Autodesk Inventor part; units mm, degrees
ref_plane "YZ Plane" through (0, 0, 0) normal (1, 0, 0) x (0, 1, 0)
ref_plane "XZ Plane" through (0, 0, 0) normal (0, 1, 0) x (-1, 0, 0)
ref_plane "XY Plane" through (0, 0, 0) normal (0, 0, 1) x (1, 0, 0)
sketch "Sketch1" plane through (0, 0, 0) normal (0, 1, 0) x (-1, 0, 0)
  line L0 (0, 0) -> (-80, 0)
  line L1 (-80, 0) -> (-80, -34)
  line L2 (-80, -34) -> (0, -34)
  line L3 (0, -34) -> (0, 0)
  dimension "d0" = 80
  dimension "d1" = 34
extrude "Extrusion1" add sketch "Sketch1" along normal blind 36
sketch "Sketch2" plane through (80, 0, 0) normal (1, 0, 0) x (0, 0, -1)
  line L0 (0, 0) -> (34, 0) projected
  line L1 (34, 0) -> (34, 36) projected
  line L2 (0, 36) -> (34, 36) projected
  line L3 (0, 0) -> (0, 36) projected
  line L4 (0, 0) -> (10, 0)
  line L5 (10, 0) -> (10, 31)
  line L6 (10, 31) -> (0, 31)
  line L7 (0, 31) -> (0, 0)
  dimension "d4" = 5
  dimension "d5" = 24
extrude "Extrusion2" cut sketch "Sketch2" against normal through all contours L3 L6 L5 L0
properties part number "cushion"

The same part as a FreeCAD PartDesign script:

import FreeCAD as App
import Part
import Sketcher

V = App.Vector
Q = App.Units.Quantity


def add_polygon(sketch, points):
    """Adds a closed chain of lines whose ends are joined by coincident constraints."""
    first, n = sketch.GeometryCount, len(points)
    for a, b in zip(points, points[1:] + points[:1]):
        sketch.addGeometry(Part.LineSegment(App.Vector(*a, 0), App.Vector(*b, 0)), False)
    for i in range(n):
        sketch.addConstraint(Sketcher.Constraint("Coincident", first + i, 2, first + (i + 1) % n, 1))

doc = App.newDocument("Part")
params = doc.addObject("Spreadsheet::Sheet", "Params")
for row, (alias, value) in enumerate([
    ("sketch1_width", "80 mm"),
    ("sketch1_height", "34 mm"),
    ("pad1_length", "36 mm"),
    ("sketch2_width", "31 mm"),
    ("sketch2_height", "10 mm"),
], start=1):
    params.set(f"A{row}", alias)
    params.set(f"B{row}", "=" + value)
    params.setAlias(f"B{row}", alias)

body = doc.addObject("PartDesign::Body", "Body")

# Sketch on XZ plane
sketch1 = body.newObject("Sketcher::SketchObject", "Sketch")
sketch1.AttachmentSupport = (doc.getObject("XZ_Plane"), [""])
sketch1.MapMode = "FlatFace"
add_polygon(sketch1, [(0, -34), (0, 0), (80, 0), (80, -34)])  # lines 0-3
sketch1.addConstraint(Sketcher.Constraint("Vertical", 0))
sketch1.addConstraint(Sketcher.Constraint("Horizontal", 1))
sketch1.addConstraint(Sketcher.Constraint("Vertical", 2))
sketch1.addConstraint(Sketcher.Constraint("Horizontal", 3))
sketch1.addConstraint(Sketcher.Constraint("Coincident", 0, 2, -1, 1))
sketch1.addConstraint(Sketcher.Constraint("DistanceX", 1, 1, 1, 2, Q("80 mm")))
sketch1.addConstraint(Sketcher.Constraint("DistanceY", 0, 1, 0, 2, Q("34 mm")))
sketch1.setExpression("Constraints[9]", "Params.sketch1_width")
sketch1.setExpression("Constraints[10]", "Params.sketch1_height")
pad1 = body.newObject("PartDesign::Pad", "Pad")
pad1.Profile = sketch1
pad1.setExpression("Length", "Params.pad1_length")
pad1.Reversed = True

# Sketch on YZ plane
sketch2 = body.newObject("Sketcher::SketchObject", "Sketch001")
sketch2.AttachmentSupport = (doc.getObject("YZ_Plane"), [""])
sketch2.MapMode = "FlatFace"
sketch2.AttachmentOffset = App.Placement(V(0, 0, 80), App.Rotation())
add_polygon(sketch2, [(31, 0), (0, 0), (0, -10), (31, -10)])  # lines 0-3
sketch2.addConstraint(Sketcher.Constraint("Horizontal", 0))
sketch2.addConstraint(Sketcher.Constraint("Vertical", 1))
sketch2.addConstraint(Sketcher.Constraint("Horizontal", 2))
sketch2.addConstraint(Sketcher.Constraint("Vertical", 3))
sketch2.addConstraint(Sketcher.Constraint("Coincident", 0, 2, -1, 1))
sketch2.addConstraint(Sketcher.Constraint("DistanceX", 0, 2, 0, 1, Q("31 mm")))
sketch2.addConstraint(Sketcher.Constraint("DistanceY", 1, 2, 1, 1, Q("10 mm")))
sketch2.setExpression("Constraints[9]", "Params.sketch2_width")
sketch2.setExpression("Constraints[10]", "Params.sketch2_height")
pocket1 = body.newObject("PartDesign::Pocket", "Pocket")
pocket1.Profile = sketch2
pocket1.Type = "ThroughAll"

doc.recompute()
